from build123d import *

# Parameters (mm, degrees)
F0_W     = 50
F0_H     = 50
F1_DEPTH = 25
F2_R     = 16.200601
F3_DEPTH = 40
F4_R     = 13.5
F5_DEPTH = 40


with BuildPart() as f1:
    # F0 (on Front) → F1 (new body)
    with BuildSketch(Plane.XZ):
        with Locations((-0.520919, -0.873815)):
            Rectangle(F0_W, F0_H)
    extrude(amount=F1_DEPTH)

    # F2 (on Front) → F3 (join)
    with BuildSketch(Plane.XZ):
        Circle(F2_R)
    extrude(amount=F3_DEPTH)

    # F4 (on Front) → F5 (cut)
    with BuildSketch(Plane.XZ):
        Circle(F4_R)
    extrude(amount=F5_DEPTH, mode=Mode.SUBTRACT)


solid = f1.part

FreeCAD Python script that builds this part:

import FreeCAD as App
import Part
import Sketcher
from FreeCAD import Vector


def add_polygon(sketch, points):
    """Adds a closed chain of lines whose ends are joined by coincident constraints."""
    first, n = sketch.GeometryCount, len(points)
    for a, b in zip(points, points[1:] + points[:1]):
        sketch.addGeometry(Part.LineSegment(App.Vector(*a, 0), App.Vector(*b, 0)), False)
    for i in range(n):
        sketch.addConstraint(Sketcher.Constraint("Coincident", first + i, 2, first + (i + 1) % n, 1))

doc = App.newDocument("Part")
body = doc.addObject("PartDesign::Body", "Body")

sketch1 = body.newObject("Sketcher::SketchObject", "Sketch")
sketch1.AttachmentSupport = (doc.getObject("XZ_Plane"), [""])
sketch1.MapMode = "FlatFace"
add_polygon(sketch1, [(-26, 24), (-26, -26), (24, -26), (24, 24)])
sketch1.addConstraint([
    Sketcher.Constraint("Vertical", 0),
    Sketcher.Constraint("Horizontal", 1),
    Sketcher.Constraint("Vertical", 2),
    Sketcher.Constraint("Horizontal", 3),
    Sketcher.Constraint("Equal", 3, 0),
    Sketcher.Constraint("DistanceX", 1, 1, 1, 2, 50.0),
    Sketcher.Constraint("DistanceX", 0, 2, -1, 1, 25.520919),
    Sketcher.Constraint("DistanceY", 0, 2, -1, 1, 25.873815),
])
pad1 = body.newObject("PartDesign::Pad", "Pad")
pad1.Profile = sketch1
pad1.Length = 25

sketch2 = body.newObject("Sketcher::SketchObject", "Sketch001")
sketch2.AttachmentSupport = (doc.getObject("XZ_Plane"), [""])
sketch2.MapMode = "FlatFace"
sketch2.addGeometry(Part.Circle(Vector(0, 0, 0), Vector(0, 0, 1), 16), False)
sketch2.addConstraint([
    Sketcher.Constraint("Coincident", 0, 3, -1, 1),
    Sketcher.Constraint("Diameter", 0, 32.401202),
])
pad2 = body.newObject("PartDesign::Pad", "Pad001")
pad2.Profile = sketch2
pad2.Length = 40

sketch3 = body.newObject("Sketcher::SketchObject", "Sketch002")
sketch3.AttachmentSupport = (doc.getObject("XZ_Plane"), [""])
sketch3.MapMode = "FlatFace"
sketch3.addGeometry(Part.Circle(Vector(0, 0, 0), Vector(0, 0, 1), 14), False)
sketch3.addConstraint([
    Sketcher.Constraint("Coincident", 0, 3, -1, 1),
    Sketcher.Constraint("Diameter", 0, 27.0),
])
pocket1 = body.newObject("PartDesign::Pocket", "Pocket")
pocket1.Profile = sketch3
pocket1.Length = 40
pocket1.Reversed = True

doc.recompute()
